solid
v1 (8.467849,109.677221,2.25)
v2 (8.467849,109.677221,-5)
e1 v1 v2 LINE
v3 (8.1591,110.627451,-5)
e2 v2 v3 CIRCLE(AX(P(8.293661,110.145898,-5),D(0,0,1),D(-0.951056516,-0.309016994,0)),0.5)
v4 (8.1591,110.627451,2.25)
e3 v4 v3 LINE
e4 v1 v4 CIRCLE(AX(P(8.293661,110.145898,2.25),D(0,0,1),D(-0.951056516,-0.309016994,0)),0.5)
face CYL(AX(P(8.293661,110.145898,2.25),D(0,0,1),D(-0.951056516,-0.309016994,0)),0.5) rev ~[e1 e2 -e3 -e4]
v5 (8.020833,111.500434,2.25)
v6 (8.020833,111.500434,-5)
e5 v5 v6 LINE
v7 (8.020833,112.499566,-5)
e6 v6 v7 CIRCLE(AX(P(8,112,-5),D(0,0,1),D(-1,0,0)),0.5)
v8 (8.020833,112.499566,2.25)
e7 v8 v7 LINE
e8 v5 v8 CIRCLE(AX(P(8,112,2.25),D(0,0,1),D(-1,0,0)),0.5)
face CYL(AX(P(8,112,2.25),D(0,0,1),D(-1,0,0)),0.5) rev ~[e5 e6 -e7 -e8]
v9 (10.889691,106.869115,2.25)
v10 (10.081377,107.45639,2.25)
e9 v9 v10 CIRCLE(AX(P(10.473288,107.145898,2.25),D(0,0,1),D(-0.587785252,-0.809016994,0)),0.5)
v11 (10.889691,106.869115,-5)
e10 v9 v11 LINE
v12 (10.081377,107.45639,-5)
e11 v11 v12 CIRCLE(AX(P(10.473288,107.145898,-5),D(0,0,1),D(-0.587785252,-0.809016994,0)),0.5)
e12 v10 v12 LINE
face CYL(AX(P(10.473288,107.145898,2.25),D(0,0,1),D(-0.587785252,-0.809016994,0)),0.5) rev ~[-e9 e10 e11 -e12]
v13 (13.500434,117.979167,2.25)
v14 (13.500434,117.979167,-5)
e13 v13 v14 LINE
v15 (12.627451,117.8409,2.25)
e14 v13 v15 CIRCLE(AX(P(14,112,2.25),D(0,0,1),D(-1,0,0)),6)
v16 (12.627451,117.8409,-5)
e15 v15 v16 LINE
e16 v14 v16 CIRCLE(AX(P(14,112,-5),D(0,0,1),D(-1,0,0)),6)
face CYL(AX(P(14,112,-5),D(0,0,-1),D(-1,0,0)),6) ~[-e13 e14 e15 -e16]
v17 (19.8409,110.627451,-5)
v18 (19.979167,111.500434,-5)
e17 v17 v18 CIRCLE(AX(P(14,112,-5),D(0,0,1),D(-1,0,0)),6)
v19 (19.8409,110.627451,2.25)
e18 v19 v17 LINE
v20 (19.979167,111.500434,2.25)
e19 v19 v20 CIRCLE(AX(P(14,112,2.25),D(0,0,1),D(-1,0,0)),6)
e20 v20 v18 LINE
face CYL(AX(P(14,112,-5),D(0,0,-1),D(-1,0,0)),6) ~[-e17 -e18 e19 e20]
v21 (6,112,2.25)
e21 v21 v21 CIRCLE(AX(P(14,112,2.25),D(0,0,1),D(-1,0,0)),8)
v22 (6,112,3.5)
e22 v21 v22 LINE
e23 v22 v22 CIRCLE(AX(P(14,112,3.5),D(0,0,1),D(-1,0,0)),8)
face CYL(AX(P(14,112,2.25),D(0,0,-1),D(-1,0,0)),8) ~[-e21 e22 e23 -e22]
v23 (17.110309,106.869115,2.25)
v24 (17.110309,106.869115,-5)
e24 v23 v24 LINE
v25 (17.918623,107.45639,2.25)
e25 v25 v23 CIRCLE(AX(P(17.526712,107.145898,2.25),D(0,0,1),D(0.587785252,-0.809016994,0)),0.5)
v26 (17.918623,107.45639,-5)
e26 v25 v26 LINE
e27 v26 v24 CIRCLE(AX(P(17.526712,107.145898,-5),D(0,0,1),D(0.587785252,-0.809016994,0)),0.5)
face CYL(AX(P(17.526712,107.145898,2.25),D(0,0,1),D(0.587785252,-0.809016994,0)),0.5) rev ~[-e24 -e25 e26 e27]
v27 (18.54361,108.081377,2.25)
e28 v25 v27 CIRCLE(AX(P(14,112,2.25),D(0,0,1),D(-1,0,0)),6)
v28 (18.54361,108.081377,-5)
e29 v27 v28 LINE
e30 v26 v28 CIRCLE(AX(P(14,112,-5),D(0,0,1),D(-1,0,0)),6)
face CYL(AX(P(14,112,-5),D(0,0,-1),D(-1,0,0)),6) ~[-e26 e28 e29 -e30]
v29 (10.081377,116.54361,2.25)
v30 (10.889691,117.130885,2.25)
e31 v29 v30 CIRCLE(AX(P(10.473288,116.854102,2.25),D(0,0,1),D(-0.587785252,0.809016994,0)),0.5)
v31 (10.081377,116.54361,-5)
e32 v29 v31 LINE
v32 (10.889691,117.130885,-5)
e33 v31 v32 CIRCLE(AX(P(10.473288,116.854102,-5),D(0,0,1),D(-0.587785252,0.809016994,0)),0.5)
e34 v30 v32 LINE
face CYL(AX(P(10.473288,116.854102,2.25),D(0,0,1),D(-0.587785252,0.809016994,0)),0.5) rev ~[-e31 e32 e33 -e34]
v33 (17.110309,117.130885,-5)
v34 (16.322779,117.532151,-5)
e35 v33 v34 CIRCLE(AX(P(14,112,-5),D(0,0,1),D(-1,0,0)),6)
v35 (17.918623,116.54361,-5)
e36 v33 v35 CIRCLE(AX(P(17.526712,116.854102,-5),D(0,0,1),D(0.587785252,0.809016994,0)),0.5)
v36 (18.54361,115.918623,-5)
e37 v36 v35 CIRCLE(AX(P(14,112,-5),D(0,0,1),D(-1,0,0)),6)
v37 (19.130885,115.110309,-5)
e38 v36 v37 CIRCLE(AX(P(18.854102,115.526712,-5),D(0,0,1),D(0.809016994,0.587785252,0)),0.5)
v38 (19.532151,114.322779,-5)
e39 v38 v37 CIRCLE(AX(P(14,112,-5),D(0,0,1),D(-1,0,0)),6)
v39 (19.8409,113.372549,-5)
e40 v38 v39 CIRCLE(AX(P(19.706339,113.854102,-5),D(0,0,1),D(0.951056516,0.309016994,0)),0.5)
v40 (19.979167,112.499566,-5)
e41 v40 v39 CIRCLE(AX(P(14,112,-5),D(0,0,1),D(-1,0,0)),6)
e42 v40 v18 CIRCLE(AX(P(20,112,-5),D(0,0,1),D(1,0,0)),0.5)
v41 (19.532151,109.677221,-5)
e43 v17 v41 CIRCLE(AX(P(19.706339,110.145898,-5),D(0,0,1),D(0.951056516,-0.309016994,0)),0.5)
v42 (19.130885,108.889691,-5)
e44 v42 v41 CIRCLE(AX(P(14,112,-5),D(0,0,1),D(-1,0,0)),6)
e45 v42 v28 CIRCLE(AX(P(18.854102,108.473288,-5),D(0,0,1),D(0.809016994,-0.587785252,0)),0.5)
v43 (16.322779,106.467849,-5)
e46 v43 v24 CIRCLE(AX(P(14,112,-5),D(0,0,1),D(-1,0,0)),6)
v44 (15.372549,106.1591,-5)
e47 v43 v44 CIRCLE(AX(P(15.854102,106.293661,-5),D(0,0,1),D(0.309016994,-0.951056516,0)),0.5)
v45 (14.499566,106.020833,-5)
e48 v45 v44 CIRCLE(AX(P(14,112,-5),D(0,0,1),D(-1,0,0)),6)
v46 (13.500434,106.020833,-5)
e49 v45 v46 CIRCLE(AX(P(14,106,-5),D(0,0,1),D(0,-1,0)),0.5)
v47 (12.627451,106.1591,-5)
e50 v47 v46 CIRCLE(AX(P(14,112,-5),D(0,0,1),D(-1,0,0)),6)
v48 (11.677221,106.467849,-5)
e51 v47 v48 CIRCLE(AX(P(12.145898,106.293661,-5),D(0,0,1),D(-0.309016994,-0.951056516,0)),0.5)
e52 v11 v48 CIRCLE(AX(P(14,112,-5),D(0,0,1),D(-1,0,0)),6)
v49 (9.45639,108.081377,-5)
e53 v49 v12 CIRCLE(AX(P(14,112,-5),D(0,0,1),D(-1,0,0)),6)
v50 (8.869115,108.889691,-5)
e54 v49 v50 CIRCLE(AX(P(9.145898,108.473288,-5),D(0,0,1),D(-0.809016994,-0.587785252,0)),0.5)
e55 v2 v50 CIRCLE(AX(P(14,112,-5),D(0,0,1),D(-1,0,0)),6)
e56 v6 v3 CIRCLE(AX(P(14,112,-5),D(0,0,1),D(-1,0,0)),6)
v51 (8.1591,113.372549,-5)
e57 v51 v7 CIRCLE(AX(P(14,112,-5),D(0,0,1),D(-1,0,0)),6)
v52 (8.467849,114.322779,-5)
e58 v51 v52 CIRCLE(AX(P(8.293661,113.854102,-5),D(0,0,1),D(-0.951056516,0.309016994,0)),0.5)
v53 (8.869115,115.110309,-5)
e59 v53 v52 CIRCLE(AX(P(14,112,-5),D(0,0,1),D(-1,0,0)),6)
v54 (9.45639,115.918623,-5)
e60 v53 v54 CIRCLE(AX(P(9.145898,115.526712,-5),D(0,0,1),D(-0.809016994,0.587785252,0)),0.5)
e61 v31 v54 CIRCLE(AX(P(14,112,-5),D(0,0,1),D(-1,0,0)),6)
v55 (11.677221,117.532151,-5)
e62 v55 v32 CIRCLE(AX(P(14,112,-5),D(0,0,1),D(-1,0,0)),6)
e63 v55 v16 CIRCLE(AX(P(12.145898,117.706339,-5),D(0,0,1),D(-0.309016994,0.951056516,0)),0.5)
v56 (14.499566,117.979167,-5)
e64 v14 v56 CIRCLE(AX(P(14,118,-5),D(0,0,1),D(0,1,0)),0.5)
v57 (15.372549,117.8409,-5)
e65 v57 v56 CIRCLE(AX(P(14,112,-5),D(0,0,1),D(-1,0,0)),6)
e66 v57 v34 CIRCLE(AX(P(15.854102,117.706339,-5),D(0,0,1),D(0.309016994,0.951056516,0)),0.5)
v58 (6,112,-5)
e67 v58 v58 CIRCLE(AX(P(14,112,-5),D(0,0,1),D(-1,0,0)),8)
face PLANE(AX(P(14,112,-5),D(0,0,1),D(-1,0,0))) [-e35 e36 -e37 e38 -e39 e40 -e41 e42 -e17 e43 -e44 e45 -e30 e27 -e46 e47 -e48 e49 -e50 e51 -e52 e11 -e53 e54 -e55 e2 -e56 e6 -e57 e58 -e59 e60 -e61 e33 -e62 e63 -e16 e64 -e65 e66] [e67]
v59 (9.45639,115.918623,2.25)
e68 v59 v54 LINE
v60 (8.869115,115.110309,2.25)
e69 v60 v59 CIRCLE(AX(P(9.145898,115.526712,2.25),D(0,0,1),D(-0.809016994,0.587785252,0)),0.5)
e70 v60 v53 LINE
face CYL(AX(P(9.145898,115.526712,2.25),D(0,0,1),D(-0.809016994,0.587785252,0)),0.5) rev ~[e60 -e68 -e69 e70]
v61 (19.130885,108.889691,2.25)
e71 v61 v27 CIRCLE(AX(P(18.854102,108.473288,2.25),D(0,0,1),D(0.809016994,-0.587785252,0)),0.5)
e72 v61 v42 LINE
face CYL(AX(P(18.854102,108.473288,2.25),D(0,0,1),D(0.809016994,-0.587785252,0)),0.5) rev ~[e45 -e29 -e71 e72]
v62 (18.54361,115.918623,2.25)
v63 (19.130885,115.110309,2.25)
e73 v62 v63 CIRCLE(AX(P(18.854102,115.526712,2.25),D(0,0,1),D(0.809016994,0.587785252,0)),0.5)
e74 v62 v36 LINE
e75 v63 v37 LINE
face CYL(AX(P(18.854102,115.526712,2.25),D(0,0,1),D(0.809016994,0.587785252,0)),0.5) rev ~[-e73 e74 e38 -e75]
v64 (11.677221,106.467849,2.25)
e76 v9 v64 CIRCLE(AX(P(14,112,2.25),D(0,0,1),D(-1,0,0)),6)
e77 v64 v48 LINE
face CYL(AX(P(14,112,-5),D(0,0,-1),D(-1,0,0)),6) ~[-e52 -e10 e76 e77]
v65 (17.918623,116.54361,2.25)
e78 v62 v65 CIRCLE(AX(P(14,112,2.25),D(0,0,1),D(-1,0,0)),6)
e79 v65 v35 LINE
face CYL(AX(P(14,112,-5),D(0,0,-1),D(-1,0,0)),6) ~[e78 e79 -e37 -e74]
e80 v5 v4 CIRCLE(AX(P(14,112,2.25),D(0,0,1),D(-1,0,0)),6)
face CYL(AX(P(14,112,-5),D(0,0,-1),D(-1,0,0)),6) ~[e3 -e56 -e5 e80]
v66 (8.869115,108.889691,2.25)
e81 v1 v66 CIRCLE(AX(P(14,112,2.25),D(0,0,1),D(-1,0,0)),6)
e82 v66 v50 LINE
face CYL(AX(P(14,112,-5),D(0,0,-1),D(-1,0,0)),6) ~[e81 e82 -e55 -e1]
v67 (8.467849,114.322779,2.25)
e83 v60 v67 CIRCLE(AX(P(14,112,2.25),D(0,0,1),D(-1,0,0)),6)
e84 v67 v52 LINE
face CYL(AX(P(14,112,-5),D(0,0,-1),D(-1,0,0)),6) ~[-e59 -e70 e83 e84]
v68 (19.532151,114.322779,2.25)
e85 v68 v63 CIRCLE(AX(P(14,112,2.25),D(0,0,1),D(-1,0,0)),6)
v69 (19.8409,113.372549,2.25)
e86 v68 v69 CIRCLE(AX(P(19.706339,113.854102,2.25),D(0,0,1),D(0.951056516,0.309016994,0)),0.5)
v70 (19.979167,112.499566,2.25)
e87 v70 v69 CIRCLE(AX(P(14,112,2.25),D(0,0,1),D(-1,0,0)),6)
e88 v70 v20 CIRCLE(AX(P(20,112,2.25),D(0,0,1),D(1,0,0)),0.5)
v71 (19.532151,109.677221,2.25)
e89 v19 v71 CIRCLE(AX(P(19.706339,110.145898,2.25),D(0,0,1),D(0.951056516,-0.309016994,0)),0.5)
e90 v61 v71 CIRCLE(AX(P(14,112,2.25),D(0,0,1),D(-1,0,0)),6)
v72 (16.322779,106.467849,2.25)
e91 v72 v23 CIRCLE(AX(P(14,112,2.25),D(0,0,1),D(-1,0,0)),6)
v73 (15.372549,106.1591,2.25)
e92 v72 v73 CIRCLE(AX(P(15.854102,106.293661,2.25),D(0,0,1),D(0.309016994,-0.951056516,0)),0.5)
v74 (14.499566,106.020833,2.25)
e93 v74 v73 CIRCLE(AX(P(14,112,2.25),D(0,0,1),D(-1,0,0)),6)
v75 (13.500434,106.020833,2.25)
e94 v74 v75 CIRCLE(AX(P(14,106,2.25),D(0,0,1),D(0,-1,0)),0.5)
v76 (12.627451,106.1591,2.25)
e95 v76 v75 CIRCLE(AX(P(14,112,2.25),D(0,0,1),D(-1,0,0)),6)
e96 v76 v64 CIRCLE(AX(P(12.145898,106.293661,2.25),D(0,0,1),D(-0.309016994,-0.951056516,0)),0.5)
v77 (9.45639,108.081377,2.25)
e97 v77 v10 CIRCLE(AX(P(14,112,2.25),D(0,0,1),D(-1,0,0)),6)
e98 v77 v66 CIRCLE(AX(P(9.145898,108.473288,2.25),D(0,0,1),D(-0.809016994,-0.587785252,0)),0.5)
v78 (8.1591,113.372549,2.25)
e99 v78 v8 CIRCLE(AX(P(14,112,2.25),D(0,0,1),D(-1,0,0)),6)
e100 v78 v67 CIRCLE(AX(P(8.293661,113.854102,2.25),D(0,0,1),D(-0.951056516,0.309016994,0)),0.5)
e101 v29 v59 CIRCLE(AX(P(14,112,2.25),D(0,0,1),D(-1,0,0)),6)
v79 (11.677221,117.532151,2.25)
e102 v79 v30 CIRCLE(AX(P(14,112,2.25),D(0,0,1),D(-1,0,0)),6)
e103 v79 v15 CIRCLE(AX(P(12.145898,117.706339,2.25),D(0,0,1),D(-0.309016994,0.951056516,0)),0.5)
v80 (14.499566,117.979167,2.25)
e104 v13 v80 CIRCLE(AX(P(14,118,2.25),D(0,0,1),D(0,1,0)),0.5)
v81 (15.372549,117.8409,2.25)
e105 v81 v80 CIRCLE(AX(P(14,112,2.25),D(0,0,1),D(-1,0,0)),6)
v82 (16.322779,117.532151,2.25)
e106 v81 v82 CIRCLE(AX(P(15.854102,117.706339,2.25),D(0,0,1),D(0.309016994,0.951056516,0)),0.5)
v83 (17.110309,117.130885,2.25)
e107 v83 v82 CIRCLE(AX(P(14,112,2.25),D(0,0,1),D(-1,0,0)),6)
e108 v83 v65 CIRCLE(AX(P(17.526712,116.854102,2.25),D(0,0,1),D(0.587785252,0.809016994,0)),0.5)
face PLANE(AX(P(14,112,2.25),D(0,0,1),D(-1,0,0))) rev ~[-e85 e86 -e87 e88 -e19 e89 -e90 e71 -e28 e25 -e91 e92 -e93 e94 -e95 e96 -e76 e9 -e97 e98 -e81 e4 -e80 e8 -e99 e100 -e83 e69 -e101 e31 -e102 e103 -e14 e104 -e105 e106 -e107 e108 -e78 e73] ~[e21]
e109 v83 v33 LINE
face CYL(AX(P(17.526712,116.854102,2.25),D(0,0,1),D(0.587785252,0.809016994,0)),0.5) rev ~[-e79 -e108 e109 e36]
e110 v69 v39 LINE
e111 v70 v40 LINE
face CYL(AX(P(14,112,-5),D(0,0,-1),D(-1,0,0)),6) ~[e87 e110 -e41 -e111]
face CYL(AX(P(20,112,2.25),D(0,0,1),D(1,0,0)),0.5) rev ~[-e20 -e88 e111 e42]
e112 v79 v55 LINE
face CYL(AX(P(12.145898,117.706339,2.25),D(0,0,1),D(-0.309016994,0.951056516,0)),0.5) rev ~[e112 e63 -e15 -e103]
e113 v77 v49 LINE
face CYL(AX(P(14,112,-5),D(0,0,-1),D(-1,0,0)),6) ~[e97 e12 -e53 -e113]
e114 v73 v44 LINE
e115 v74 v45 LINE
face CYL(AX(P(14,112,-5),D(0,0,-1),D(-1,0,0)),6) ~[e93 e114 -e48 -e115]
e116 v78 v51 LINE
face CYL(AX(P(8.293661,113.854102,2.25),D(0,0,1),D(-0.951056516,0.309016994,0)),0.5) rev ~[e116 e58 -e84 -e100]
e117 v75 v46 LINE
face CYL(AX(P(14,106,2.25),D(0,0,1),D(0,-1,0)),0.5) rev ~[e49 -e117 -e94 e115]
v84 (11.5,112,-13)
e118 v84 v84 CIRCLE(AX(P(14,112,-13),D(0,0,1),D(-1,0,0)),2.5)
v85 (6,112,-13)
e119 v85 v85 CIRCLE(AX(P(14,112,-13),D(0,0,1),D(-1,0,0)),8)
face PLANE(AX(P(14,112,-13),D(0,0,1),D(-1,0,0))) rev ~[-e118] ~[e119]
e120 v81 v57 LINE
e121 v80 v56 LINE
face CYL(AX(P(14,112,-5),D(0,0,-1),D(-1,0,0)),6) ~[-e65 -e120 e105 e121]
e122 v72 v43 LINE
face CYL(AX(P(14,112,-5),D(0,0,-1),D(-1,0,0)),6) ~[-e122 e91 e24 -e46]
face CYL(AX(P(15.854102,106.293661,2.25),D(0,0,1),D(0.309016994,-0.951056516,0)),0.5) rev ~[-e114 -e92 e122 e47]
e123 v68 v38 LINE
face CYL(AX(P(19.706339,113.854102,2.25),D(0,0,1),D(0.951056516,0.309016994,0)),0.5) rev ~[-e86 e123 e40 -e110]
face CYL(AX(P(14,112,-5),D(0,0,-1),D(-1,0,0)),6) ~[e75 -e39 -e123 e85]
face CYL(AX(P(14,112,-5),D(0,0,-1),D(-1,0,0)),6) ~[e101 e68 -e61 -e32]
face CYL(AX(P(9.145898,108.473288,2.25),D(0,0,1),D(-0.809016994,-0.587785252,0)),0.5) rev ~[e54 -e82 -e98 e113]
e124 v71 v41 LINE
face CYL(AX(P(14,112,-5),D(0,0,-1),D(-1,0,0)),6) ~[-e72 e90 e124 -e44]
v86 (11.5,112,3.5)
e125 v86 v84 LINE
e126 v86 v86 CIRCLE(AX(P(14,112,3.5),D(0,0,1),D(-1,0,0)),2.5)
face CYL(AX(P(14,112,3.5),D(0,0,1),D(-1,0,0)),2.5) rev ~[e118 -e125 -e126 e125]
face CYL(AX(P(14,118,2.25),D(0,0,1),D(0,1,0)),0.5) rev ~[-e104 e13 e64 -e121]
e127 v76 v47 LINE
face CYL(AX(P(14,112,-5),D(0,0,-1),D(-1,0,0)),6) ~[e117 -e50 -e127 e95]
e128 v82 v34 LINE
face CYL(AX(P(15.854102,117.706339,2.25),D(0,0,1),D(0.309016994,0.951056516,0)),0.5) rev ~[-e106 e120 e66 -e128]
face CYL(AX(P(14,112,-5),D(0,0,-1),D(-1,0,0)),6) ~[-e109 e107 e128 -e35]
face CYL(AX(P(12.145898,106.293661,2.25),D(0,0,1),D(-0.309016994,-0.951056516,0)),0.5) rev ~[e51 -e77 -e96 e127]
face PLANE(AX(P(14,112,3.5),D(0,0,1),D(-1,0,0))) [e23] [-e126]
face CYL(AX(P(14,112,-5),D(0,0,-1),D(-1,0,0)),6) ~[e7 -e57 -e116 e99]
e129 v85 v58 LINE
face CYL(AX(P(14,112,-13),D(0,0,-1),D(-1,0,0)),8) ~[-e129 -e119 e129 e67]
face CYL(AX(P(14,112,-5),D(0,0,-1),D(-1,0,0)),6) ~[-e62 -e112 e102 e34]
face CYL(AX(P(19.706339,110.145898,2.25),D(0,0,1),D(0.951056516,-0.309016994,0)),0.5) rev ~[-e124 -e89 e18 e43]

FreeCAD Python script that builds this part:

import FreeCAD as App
import Part
import Sketcher
from FreeCAD import Vector
Q = App.Units.Quantity

doc = App.newDocument("Part")
body = doc.addObject("PartDesign::Body", "Body")

sketch1 = doc.addObject("Sketcher::SketchObject", "Sketch")
body.addObject(sketch1)
sketch1.AttachmentSupport = (doc.XY_Plane, [""])
sketch1.MapMode = "FlatFace"
sketch1.addGeometry(Part.Circle(Vector(20, -80, 0), Vector(0, 0, 1), 8), False)
sketch1.addConstraint([
    Sketcher.Constraint("Diameter", 0, Q("16 mm")),
    Sketcher.Constraint("DistanceX", -1, 1, 0, 3, Q("20 mm")),
    Sketcher.Constraint("DistanceY", 0, 3, -1, 1, Q("80 mm")),
])
pad1 = doc.addObject("PartDesign::Pad", "Pad")
body.addObject(pad1)
pad1.Profile = sketch1
pad1.Length = 8
pad1.Reversed = True

sketch2 = doc.addObject("Sketcher::SketchObject", "Sketch001")
body.addObject(sketch2)
sketch2.AttachmentSupport = (doc.XY_Plane, [""])
sketch2.MapMode = "FlatFace"
sketch2.AttachmentOffset = App.Placement(Vector(0, 0, -8), App.Rotation())
sketch2.addGeometry(Part.Circle(Vector(20, -80, 0), Vector(0, 0, 1), 6), False)
sketch2.addConstraint([
    Sketcher.Constraint("Diameter", 0, Q("12 mm")),
    Sketcher.Constraint("DistanceX", -1, 1, 0, 3, Q("20 mm")),
    Sketcher.Constraint("DistanceY", 0, 3, -1, 1, Q("80 mm")),
])
pad2 = doc.addObject("PartDesign::Pad", "Pad001")
body.addObject(pad2)
pad2.Profile = sketch2
pad2.Length = 7.25
pad2.Reversed = True

sketch3 = doc.addObject("Sketcher::SketchObject", "Sketch002")
body.addObject(sketch3)
sketch3.AttachmentSupport = (doc.XY_Plane, [""])
sketch3.MapMode = "FlatFace"
sketch3.AttachmentOffset = App.Placement(Vector(0, 0, -15.25), App.Rotation())
sketch3.addGeometry(Part.Circle(Vector(26, -80, 0), Vector(0, 0, 1), 0.5), False)
sketch3.addConstraint([
    Sketcher.Constraint("Diameter", 0, Q("1 mm")),
    Sketcher.Constraint("DistanceX", -1, 1, 0, 3, Q("26 mm")),
    Sketcher.Constraint("DistanceY", 0, 3, -1, 1, Q("80 mm")),
])
pocket1 = doc.addObject("PartDesign::Pocket", "Pocket")
body.addObject(pocket1)
pocket1.Profile = sketch3
pocket1.Length = 7.25
pocket1.Reversed = True
doc.recompute()

datumline = doc.addObject("PartDesign::Line", "DatumLine")
body.addObject(datumline)
datumline.Placement = App.Placement(Vector(20, -80, 0), App.Rotation(Vector(0, 0, 1), Vector(0, 0, -1)))
polarpattern = doc.addObject("PartDesign::PolarPattern", "PolarPattern")
body.addObject(polarpattern)
polarpattern.Originals = [pocket1]
polarpattern.Axis = (datumline, [""])
polarpattern.Angle = 360
polarpattern.Occurrences = 20
body.Tip = polarpattern

sketch4 = doc.addObject("Sketcher::SketchObject", "Sketch003")
body.addObject(sketch4)
sketch4.AttachmentSupport = (doc.XY_Plane, [""])
sketch4.MapMode = "FlatFace"
sketch4.AttachmentOffset = App.Placement(Vector(0, 0, -15.25), App.Rotation())
sketch4.addGeometry(Part.Circle(Vector(20, -80, 0), Vector(0, 0, 1), 8), False)
sketch4.addConstraint([
    Sketcher.Constraint("Diameter", 0, Q("16 mm")),
    Sketcher.Constraint("DistanceX", -1, 1, 0, 3, Q("20 mm")),
    Sketcher.Constraint("DistanceY", 0, 3, -1, 1, Q("80 mm")),
])
pad3 = doc.addObject("PartDesign::Pad", "Pad002")
body.addObject(pad3)
pad3.Profile = sketch4
pad3.Length = 1.25
pad3.Reversed = True

sketch5 = doc.addObject("Sketcher::SketchObject", "Sketch004")
body.addObject(sketch5)
sketch5.AttachmentSupport = (doc.XY_Plane, [""])
sketch5.MapMode = "FlatFace"
sketch5.AttachmentOffset = App.Placement(Vector(0, 0, -16.5), App.Rotation())
sketch5.addGeometry(Part.Circle(Vector(20, -80, 0), Vector(0, 0, 1), 2.5), False)
sketch5.addConstraint([
    Sketcher.Constraint("Diameter", 0, Q("5 mm")),
    Sketcher.Constraint("DistanceX", -1, 1, 0, 3, Q("20 mm")),
    Sketcher.Constraint("DistanceY", 0, 3, -1, 1, Q("80 mm")),
])
pocket2 = doc.addObject("PartDesign::Pocket", "Pocket001")
body.addObject(pocket2)
pocket2.Profile = sketch5
pocket2.Length = 16.5
pocket2.Reversed = True
body2 = doc.addObject("PartDesign::Body", "Body001")
doc.recompute()

body.Placement = App.Placement(Vector(34, 192, -13), App.Rotation(Vector(0, -1, 0), 180))
boolean = doc.addObject("PartDesign::Boolean", "Boolean")
body2.addObject(boolean)
boolean.Type = "Fuse"
boolean.addObjects([body])

doc.recompute()
